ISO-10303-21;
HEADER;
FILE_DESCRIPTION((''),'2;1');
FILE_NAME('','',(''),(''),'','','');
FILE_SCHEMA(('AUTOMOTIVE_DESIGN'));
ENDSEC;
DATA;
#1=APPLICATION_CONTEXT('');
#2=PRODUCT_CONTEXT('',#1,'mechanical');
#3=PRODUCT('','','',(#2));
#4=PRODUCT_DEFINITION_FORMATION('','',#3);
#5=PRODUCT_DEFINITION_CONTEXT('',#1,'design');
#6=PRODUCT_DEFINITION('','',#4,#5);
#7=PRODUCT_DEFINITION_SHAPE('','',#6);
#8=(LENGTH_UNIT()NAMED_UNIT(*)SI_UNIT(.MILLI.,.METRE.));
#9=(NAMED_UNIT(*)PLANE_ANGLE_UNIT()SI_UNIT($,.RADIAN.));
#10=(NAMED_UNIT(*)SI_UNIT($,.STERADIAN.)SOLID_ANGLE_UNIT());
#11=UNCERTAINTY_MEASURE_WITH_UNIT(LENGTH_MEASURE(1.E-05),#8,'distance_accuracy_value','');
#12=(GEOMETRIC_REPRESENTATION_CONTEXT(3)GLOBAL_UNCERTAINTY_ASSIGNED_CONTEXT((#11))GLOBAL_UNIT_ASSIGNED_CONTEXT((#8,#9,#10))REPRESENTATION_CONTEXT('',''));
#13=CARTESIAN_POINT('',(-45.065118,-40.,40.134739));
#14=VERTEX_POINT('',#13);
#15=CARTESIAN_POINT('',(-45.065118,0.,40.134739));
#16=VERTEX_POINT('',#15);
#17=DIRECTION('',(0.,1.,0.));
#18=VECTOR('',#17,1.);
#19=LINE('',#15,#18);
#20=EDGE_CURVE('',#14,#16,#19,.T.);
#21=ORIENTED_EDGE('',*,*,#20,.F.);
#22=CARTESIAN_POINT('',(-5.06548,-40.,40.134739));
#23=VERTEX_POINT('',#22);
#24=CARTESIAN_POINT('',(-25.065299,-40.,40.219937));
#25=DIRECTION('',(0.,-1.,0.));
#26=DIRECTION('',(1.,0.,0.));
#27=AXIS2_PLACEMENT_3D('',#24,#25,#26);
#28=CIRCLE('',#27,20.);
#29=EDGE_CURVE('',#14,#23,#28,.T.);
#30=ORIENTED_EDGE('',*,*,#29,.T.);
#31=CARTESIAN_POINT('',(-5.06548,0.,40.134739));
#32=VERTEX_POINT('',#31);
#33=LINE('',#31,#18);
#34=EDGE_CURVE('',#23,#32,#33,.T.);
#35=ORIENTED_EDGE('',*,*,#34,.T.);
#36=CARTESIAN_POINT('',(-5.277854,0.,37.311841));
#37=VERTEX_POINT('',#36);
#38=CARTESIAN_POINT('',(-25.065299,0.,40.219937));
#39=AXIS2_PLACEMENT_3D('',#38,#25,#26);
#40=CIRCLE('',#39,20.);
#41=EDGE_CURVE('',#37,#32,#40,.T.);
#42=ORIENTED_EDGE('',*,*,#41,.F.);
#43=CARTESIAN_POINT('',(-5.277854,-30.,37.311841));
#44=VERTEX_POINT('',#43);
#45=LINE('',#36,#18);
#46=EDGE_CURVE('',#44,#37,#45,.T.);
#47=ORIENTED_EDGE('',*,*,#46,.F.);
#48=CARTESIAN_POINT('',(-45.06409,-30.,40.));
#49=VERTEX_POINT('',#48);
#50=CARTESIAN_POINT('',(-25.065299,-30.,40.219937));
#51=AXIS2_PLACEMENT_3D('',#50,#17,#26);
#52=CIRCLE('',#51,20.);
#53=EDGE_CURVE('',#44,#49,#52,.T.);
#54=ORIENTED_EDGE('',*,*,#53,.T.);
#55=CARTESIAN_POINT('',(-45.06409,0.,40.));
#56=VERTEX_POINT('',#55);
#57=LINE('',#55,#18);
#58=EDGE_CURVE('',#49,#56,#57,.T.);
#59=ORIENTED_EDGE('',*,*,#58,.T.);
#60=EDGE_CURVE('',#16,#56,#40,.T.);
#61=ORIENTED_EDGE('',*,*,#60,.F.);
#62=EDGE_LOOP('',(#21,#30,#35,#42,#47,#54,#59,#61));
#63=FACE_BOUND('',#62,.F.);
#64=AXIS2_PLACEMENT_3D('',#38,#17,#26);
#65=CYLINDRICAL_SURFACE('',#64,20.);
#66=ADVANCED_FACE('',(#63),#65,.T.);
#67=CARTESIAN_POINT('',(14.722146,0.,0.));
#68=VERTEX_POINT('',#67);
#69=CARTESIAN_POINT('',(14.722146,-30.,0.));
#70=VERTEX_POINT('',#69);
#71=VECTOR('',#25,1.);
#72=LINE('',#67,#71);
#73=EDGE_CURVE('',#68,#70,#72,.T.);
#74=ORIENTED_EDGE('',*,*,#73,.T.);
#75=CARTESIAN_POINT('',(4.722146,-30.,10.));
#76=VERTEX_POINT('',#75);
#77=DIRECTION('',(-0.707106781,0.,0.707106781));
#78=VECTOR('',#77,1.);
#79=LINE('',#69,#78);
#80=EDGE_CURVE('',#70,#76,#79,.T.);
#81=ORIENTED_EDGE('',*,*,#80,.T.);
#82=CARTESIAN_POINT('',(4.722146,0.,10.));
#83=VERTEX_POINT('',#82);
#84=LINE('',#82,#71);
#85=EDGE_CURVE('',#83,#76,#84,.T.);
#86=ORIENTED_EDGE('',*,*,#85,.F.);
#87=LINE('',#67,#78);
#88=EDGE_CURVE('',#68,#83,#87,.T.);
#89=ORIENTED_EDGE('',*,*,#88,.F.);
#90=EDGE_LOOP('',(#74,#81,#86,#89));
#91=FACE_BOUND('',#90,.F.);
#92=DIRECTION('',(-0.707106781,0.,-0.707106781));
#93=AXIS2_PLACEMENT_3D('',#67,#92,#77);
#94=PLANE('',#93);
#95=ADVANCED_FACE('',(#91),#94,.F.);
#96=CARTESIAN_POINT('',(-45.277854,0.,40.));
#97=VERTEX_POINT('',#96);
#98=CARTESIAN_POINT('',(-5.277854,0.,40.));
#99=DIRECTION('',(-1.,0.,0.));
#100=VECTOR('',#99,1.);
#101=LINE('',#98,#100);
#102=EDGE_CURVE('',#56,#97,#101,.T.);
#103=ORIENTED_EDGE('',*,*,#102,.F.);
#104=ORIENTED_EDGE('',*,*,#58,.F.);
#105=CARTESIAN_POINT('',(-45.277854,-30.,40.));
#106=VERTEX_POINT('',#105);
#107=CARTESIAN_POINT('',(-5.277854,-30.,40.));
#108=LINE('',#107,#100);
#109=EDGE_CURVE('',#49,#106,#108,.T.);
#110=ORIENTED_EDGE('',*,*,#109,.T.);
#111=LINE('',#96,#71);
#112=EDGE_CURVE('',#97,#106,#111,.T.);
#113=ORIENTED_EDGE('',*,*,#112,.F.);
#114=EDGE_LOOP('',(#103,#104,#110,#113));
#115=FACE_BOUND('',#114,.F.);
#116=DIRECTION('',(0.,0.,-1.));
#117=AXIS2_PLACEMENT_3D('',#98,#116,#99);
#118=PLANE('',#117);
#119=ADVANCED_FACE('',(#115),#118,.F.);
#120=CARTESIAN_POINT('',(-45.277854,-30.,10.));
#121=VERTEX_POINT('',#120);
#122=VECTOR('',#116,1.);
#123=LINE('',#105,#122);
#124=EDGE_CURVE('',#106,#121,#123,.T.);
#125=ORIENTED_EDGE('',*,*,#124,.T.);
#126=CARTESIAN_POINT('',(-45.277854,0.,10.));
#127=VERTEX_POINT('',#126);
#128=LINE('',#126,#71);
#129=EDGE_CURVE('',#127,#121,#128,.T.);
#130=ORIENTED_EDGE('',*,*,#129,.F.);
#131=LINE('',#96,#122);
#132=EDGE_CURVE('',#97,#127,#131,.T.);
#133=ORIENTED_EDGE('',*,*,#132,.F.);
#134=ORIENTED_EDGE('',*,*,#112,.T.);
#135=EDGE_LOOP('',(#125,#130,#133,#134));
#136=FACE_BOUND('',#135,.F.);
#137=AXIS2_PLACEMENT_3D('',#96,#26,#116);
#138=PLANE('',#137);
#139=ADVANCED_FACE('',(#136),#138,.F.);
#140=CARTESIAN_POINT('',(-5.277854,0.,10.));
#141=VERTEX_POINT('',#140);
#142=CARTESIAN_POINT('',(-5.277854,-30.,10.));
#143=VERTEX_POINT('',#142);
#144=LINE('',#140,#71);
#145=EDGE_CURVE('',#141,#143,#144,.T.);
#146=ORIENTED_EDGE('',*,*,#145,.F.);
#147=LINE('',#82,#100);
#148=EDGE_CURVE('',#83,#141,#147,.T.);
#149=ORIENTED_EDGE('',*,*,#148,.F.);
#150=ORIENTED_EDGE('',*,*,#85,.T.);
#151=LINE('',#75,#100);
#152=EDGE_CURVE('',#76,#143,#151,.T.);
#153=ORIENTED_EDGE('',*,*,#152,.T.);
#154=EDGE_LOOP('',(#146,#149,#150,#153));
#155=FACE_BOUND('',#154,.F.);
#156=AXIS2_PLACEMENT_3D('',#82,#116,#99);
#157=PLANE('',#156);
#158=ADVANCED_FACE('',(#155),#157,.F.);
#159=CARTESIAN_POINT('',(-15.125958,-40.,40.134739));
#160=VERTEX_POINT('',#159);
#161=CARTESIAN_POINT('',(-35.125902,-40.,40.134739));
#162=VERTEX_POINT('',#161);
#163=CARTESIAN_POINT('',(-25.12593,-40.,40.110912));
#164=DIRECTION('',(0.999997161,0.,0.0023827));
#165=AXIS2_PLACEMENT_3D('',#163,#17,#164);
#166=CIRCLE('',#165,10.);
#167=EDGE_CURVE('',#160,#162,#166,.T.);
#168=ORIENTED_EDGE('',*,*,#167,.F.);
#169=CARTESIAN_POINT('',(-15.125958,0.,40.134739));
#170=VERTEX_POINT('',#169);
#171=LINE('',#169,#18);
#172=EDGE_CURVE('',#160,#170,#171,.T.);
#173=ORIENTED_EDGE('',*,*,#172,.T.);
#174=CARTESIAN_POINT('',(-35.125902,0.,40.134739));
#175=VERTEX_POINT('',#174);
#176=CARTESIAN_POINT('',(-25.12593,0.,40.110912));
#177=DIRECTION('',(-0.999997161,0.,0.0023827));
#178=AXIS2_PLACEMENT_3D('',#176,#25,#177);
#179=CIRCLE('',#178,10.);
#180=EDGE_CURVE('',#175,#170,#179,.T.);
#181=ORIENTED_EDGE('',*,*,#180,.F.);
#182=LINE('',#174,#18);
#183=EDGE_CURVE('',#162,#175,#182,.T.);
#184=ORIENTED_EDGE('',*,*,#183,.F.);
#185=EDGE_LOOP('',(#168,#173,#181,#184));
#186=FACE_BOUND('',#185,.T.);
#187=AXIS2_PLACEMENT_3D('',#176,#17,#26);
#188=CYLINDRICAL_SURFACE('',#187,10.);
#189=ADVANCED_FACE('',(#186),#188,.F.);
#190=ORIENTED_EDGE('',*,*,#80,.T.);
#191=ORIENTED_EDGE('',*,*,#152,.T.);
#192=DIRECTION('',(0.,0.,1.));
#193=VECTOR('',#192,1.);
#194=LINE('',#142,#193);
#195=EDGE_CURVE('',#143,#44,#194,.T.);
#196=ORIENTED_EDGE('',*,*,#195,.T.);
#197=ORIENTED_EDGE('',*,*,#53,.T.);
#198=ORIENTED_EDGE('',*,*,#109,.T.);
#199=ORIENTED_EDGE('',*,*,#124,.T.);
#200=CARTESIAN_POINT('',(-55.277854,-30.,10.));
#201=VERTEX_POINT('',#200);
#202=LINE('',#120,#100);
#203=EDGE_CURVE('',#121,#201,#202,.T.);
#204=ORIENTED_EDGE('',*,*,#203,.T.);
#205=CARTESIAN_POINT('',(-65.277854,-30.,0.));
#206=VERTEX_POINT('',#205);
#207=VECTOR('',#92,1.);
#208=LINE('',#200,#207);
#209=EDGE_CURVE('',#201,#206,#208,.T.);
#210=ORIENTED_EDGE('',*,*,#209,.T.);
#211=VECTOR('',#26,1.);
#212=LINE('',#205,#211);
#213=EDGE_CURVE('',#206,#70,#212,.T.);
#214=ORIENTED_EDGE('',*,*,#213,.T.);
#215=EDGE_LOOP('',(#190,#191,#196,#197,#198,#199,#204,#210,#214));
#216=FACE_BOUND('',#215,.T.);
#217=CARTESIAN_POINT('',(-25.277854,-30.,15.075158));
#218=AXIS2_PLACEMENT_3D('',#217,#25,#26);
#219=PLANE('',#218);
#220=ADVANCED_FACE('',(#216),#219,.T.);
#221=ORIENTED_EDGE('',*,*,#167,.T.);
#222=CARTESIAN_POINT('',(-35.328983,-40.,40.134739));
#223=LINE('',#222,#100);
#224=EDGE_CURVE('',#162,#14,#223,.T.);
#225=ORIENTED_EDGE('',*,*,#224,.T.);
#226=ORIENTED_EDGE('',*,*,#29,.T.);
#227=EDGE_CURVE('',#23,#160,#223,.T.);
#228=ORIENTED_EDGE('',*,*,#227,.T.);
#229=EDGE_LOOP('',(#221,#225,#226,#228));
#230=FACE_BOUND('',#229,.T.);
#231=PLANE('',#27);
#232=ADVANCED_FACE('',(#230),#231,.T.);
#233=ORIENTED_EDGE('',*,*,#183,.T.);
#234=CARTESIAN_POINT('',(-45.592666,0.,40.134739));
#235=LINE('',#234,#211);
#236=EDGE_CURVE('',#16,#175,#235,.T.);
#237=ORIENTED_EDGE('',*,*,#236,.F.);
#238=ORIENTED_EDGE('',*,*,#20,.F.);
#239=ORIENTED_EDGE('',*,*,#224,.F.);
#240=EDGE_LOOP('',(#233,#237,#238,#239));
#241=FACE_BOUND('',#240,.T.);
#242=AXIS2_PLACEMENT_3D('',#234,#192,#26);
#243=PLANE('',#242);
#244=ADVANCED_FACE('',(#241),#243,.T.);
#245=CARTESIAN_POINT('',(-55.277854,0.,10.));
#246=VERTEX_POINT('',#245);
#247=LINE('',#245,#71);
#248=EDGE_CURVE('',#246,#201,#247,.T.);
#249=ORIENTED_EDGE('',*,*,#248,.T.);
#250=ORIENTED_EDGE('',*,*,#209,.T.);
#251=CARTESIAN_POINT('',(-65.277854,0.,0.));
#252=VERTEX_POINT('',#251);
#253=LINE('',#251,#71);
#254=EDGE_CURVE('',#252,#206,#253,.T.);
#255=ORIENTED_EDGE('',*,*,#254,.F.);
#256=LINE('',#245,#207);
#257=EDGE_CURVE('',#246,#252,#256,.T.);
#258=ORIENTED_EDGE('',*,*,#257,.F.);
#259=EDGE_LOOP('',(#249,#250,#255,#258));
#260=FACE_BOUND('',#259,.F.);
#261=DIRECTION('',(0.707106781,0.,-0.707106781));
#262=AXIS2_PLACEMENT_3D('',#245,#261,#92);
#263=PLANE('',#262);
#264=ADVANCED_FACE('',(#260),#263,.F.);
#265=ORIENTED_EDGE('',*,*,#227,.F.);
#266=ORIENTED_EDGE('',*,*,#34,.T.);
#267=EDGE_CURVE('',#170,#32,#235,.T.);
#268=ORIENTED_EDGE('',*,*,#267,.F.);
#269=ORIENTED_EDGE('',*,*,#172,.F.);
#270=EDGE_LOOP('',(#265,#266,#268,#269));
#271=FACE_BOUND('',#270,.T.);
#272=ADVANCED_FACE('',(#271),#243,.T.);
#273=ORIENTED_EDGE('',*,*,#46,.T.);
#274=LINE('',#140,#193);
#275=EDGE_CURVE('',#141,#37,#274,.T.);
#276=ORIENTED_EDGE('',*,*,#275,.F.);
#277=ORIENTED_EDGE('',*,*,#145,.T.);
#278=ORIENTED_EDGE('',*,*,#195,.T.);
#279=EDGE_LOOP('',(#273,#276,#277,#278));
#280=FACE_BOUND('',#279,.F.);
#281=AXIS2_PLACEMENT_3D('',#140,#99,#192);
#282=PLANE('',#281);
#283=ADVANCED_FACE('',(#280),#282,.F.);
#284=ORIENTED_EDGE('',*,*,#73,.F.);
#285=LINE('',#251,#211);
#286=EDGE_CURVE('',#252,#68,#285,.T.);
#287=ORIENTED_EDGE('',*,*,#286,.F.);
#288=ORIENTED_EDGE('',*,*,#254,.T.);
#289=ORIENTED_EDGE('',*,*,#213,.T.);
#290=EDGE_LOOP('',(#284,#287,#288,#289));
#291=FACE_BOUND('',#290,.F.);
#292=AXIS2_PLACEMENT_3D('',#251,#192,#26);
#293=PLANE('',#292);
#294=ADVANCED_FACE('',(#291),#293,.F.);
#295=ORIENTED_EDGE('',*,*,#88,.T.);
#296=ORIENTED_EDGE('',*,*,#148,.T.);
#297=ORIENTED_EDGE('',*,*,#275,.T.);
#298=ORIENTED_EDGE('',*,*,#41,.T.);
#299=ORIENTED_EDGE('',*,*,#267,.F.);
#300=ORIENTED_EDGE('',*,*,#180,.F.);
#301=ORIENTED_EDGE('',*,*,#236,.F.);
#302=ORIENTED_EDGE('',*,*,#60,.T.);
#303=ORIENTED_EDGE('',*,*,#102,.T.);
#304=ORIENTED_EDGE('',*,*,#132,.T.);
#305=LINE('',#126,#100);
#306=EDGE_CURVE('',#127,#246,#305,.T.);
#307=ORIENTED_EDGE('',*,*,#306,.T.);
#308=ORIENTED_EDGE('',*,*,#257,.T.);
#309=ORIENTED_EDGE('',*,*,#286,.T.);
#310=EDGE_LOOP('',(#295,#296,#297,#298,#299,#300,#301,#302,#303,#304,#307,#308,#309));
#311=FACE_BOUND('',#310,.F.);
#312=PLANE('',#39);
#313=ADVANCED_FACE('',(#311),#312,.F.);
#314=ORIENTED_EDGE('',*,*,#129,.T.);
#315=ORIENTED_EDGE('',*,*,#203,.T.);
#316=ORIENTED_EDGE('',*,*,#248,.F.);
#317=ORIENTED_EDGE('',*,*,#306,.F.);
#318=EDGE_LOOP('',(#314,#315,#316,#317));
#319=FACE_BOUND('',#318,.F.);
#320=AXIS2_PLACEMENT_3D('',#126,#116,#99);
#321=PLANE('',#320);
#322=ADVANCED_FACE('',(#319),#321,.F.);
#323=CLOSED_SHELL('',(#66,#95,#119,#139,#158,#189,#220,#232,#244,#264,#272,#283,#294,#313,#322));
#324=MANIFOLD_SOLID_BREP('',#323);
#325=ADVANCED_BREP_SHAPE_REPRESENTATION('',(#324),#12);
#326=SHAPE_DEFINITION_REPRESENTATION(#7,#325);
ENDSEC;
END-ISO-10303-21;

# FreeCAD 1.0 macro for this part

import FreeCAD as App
import Part
import Sketcher
Q = App.Units.Quantity


def add_polygon(sketch, points):
    """Adds a closed chain of lines whose ends are joined by coincident constraints."""
    first, n = sketch.GeometryCount, len(points)
    for a, b in zip(points, points[1:] + points[:1]):
        sketch.addGeometry(Part.LineSegment(App.Vector(*a, 0), App.Vector(*b, 0)), False)
    for i in range(n):
        sketch.addConstraint(Sketcher.Constraint("Coincident", first + i, 2, first + (i + 1) % n, 1))

doc = App.newDocument("Part")
body = doc.addObject("PartDesign::Body", "Body")

sketch1 = body.newObject("Sketcher::SketchObject", "Sketch")
sketch1.AttachmentSupport = (doc.getObject("XZ_Plane"), [""])
sketch1.MapMode = "FlatFace"
add_polygon(sketch1, [(-55, 10), (-65, 0), (15, 0), (5, 10), (-5, 10), (-5, 40), (-45, 40), (-45, 10)])
sketch1.addConstraint([
    Sketcher.Constraint("Horizontal", 1),
    Sketcher.Constraint("Horizontal", 3),
    Sketcher.Constraint("Vertical", 4),
    Sketcher.Constraint("Horizontal", 5),
    Sketcher.Constraint("Vertical", 6),
    Sketcher.Constraint("Horizontal", 7),
    Sketcher.Constraint("PointOnObject", 0, 2, -1),
    Sketcher.Constraint("Perpendicular", 0, 2),
    Sketcher.Constraint("Horizontal", 3, 2, 6, 2),
    Sketcher.Constraint("Equal", 3, 7),
    Sketcher.Constraint("Equal", 0, 2),
    Sketcher.Constraint("DistanceX", 1, 1, 1, 2, Q("80 mm")),
    Sketcher.Constraint("DistanceX", 3, 2, 3, 1, Q("10 mm")),
    Sketcher.Constraint("DistanceX", 5, 2, 5, 1, Q("40 mm")),
    Sketcher.Constraint("DistanceY", 4, 1, 4, 2, Q("30 mm")),
    Sketcher.Constraint("DistanceX", 0, 2, -1, 1, Q("65.277854 mm")),
])
pad1 = body.newObject("PartDesign::Pad", "Pad")
pad1.Profile = sketch1
pad1.Length = 30

sketch2 = body.newObject("Sketcher::SketchObject", "Sketch001")
sketch2.AttachmentSupport = (doc.getObject("XZ_Plane"), [""])
sketch2.MapMode = "FlatFace"
sketch2.addGeometry(Part.Circle(App.Vector(-25, 40, 0), App.Vector(0, 0, 1), 20), False)
sketch2.addConstraint([
    Sketcher.Constraint("Diameter", 0, Q("40 mm")),
    Sketcher.Constraint("DistanceX", 0, 3, -1, 1, Q("25.065299 mm")),
    Sketcher.Constraint("DistanceY", -1, 1, 0, 3, Q("40.219937 mm")),
])
pad2 = body.newObject("PartDesign::Pad", "Pad001")
pad2.Profile = sketch2
pad2.Length = 40

sketch3 = body.newObject("Sketcher::SketchObject", "Sketch002")
sketch3.AttachmentSupport = (doc.getObject("XZ_Plane"), [""])
sketch3.MapMode = "FlatFace"
sketch3.addGeometry(Part.Circle(App.Vector(-25, 40, 0), App.Vector(0, 0, 1), 10), False)
sketch3.addConstraint([
    Sketcher.Constraint("Diameter", 0, Q("20 mm")),
    Sketcher.Constraint("DistanceX", 0, 3, -1, 1, Q("25.12593 mm")),
    Sketcher.Constraint("DistanceY", -1, 1, 0, 3, Q("40.110912 mm")),
])
pocket1 = body.newObject("PartDesign::Pocket", "Pocket")
pocket1.Profile = sketch3
pocket1.Length = 50.6
pocket1.Reversed = True

sketch4 = body.newObject("Sketcher::SketchObject", "Sketch003")
sketch4.AttachmentSupport = (doc.getObject("XZ_Plane"), [""])
sketch4.MapMode = "FlatFace"
add_polygon(sketch4, [(-45.997363, 66.289328), (-45.592666, 40.134739), (-1.902011, 40.134739), (-3.919857, 66.289328)])
sketch4.addConstraint([
    Sketcher.Constraint("Horizontal", 1),
    Sketcher.Constraint("Horizontal", 3),
    Sketcher.Constraint("Distance", 0, Q("26.15772 mm")),
    Sketcher.Constraint("DistanceX", 1, 1, 1, 2, Q("43.690655 mm")),
    Sketcher.Constraint("DistanceX", 3, 2, 3, 1, Q("42.077506 mm")),
    Sketcher.Constraint("DistanceY", -1, 1, 0, 2, Q("40.134739 mm")),
    Sketcher.Constraint("DistanceX", 1, 2, -1, 1, Q("1.902011 mm")),
    Sketcher.Constraint("DistanceY", 1, 2, 2, 2, Q("26.154589 mm")),
])
pocket2 = body.newObject("PartDesign::Pocket", "Pocket001")
pocket2.Profile = sketch4
pocket2.Length = 72.9
pocket2.Reversed = True

doc.recompute()
